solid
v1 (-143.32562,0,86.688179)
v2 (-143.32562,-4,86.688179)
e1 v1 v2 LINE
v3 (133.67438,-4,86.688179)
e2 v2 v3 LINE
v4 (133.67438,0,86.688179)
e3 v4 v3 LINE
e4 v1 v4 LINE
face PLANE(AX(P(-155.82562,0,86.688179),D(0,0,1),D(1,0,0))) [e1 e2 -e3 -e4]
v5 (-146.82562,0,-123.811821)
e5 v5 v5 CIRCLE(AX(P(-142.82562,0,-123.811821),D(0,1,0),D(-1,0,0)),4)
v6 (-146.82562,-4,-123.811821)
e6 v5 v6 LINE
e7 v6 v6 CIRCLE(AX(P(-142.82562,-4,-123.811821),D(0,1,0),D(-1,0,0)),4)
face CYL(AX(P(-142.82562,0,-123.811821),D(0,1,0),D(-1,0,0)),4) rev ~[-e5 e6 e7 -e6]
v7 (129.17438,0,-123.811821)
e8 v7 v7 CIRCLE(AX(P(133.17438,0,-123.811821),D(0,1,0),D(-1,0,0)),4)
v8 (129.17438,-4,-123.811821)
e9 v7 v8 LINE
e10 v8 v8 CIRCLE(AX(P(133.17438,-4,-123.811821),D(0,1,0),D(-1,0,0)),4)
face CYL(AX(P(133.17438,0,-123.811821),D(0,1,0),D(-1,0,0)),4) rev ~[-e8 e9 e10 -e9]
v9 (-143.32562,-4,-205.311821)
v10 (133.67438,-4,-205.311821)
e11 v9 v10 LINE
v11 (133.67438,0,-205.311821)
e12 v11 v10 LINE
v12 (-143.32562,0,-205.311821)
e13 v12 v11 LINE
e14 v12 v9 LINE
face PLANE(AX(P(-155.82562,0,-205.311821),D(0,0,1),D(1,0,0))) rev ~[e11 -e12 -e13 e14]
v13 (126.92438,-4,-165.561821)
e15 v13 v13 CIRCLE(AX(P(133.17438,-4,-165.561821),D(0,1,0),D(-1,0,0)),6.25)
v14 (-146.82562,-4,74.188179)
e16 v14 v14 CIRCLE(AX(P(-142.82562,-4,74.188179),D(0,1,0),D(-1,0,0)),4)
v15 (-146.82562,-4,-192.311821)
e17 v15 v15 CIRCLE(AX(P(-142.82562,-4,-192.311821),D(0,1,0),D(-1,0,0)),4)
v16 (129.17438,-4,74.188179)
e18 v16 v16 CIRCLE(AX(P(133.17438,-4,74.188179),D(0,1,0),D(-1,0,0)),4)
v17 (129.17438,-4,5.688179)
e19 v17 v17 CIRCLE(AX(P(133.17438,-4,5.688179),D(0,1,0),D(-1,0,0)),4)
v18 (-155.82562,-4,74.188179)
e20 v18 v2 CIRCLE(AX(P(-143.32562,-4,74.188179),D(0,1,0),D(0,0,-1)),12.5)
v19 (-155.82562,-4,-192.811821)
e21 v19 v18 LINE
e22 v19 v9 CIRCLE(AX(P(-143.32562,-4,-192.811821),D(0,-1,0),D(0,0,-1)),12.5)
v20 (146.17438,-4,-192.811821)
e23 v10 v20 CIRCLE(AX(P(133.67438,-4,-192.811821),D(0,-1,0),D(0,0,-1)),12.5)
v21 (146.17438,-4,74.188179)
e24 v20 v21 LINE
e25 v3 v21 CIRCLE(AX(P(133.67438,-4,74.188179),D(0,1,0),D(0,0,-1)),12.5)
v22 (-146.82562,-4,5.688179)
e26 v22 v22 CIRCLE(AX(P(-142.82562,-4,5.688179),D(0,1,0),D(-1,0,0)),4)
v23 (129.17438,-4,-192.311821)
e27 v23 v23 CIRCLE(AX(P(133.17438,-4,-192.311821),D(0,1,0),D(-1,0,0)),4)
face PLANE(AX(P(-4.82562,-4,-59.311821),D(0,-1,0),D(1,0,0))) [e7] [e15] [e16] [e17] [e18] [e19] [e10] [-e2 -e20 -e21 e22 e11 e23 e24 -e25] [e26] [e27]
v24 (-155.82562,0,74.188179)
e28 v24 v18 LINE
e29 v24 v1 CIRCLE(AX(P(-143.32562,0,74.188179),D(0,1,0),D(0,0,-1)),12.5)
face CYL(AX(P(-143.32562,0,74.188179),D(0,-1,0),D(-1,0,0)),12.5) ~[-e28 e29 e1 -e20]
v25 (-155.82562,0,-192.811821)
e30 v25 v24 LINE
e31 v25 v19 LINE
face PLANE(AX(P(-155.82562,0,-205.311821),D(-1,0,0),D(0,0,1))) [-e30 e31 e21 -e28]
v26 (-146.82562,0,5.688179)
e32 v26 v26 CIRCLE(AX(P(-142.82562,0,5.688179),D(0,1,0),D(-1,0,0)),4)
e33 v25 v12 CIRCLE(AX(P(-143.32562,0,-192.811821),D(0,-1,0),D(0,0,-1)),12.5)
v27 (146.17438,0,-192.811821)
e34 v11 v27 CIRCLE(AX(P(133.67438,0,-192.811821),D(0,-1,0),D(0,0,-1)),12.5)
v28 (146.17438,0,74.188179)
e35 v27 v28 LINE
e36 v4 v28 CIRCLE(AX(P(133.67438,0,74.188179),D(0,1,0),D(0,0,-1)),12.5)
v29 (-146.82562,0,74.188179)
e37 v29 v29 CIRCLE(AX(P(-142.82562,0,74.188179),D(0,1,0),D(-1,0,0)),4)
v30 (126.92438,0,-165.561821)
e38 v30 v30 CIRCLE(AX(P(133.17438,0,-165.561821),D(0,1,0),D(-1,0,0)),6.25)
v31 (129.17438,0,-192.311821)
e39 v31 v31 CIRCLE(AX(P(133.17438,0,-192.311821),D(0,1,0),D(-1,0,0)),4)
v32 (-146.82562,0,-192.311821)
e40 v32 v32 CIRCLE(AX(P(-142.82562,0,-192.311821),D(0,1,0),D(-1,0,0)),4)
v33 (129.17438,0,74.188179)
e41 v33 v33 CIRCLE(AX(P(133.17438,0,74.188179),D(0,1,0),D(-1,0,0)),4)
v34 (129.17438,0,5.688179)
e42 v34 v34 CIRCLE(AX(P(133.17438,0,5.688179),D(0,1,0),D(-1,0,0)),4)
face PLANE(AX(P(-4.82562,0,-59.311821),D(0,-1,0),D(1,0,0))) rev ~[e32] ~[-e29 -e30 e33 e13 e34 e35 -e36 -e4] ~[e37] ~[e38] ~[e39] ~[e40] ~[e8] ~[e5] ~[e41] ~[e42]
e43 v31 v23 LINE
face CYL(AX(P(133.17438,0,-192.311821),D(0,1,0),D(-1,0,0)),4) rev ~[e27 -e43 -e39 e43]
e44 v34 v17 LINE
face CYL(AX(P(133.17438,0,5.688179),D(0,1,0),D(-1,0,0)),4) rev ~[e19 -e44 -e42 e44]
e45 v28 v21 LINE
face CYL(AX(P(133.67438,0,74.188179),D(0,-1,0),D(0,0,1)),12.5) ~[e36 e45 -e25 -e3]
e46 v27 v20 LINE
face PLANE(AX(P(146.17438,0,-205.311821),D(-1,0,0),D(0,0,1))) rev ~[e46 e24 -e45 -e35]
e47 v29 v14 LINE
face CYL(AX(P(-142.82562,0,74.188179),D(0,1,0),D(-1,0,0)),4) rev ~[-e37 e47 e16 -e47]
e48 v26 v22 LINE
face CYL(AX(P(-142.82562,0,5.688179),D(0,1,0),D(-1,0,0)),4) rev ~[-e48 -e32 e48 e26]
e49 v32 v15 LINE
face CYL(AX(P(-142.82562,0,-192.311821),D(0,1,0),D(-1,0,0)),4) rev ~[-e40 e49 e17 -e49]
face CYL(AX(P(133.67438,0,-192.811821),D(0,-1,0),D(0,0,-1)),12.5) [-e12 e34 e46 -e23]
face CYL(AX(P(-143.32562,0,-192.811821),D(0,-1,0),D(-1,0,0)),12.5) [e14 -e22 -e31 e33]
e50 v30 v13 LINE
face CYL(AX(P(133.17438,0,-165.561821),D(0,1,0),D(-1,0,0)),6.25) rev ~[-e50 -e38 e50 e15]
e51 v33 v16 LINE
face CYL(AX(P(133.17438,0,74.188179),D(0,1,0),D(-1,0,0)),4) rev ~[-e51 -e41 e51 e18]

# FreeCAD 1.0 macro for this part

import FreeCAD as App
import Part
import Sketcher

V = App.Vector
Q = App.Units.Quantity


def edges_at(feature, points):
    """Names of the edges that pass closest to the given points."""
    edges = feature.Shape.Edges
    near = lambda p: min(range(len(edges)), key=lambda i: edges[i].distToShape(Part.Vertex(*p))[0])
    return sorted({f"Edge{near(p) + 1}" for p in points})


def add_polygon(sketch, points):
    """Adds a closed chain of lines whose ends are joined by coincident constraints."""
    first, n = sketch.GeometryCount, len(points)
    for a, b in zip(points, points[1:] + points[:1]):
        sketch.addGeometry(Part.LineSegment(App.Vector(*a, 0), App.Vector(*b, 0)), False)
    for i in range(n):
        sketch.addConstraint(Sketcher.Constraint("Coincident", first + i, 2, first + (i + 1) % n, 1))

doc = App.newDocument("Part")
body = doc.addObject("PartDesign::Body", "Body")

# Sketch on XZ plane
sketch1 = body.newObject("Sketcher::SketchObject", "Sketch")
sketch1.AttachmentSupport = (doc.getObject("XZ_Plane"), [""])
sketch1.MapMode = "FlatFace"
add_polygon(sketch1, [(-155.82562, 86.688179), (-155.82562, -205.311821), (146.17438, -205.311821), (146.17438, 86.688179)])  # lines 0-3
sketch1.addConstraint(Sketcher.Constraint("Vertical", 0))
sketch1.addConstraint(Sketcher.Constraint("Horizontal", 1))
sketch1.addConstraint(Sketcher.Constraint("Vertical", 2))
sketch1.addConstraint(Sketcher.Constraint("Horizontal", 3))
sketch1.addConstraint(Sketcher.Constraint("DistanceX", 1, 1, 1, 2, Q("302 mm")))
sketch1.addConstraint(Sketcher.Constraint("DistanceY", 0, 2, 0, 1, Q("292 mm")))
sketch1.addConstraint(Sketcher.Constraint("DistanceX", 0, 2, -1, 1, Q("155.82562 mm")))
sketch1.addConstraint(Sketcher.Constraint("DistanceY", 0, 2, -1, 1, Q("205.311821 mm")))
pad1 = body.newObject("PartDesign::Pad", "Pad")
pad1.Profile = sketch1
pad1.Length = 4

# Sketch on XZ plane
sketch2 = body.newObject("Sketcher::SketchObject", "Sketch001")
sketch2.AttachmentSupport = (doc.getObject("XZ_Plane"), [""])
sketch2.MapMode = "FlatFace"
sketch2.addGeometry(Part.Circle(V(133.17438, -192.311821, 0), V(0, 0, 1), 4), False)
sketch2.addGeometry(Part.Circle(V(133.17438, -123.811821, 0), V(0, 0, 1), 4), False)
sketch2.addGeometry(Part.Circle(V(133.17438, 5.688179, 0), V(0, 0, 1), 4), False)
sketch2.addGeometry(Part.Circle(V(133.17438, 74.188179, 0), V(0, 0, 1), 4), False)
sketch2.addGeometry(Part.Circle(V(-142.82562, -192.311821, 0), V(0, 0, 1), 4), False)
sketch2.addGeometry(Part.Circle(V(-142.82562, -123.811821, 0), V(0, 0, 1), 4), False)
sketch2.addGeometry(Part.Circle(V(-142.82562, 5.688179, 0), V(0, 0, 1), 4), False)
sketch2.addGeometry(Part.Circle(V(-142.82562, 74.188179, 0), V(0, 0, 1), 4), False)
sketch2.addGeometry(Part.Circle(V(133.17438, -165.561821, 0), V(0, 0, 1), 6.25), False)
sketch2.addConstraint(Sketcher.Constraint("Equal", 0, 1))
sketch2.addConstraint(Sketcher.Constraint("Equal", 1, 2))
sketch2.addConstraint(Sketcher.Constraint("Equal", 2, 3))
sketch2.addConstraint(Sketcher.Constraint("Equal", 3, 4))
sketch2.addConstraint(Sketcher.Constraint("Equal", 4, 5))
sketch2.addConstraint(Sketcher.Constraint("Equal", 5, 6))
sketch2.addConstraint(Sketcher.Constraint("Equal", 6, 7))
sketch2.addConstraint(Sketcher.Constraint("Horizontal", 0, 3, 4, 3))
sketch2.addConstraint(Sketcher.Constraint("Horizontal", 1, 3, 5, 3))
sketch2.addConstraint(Sketcher.Constraint("Horizontal", 2, 3, 6, 3))
sketch2.addConstraint(Sketcher.Constraint("Horizontal", 3, 3, 7, 3))
sketch2.addConstraint(Sketcher.Constraint("Vertical", 0, 3, 1, 3))
sketch2.addConstraint(Sketcher.Constraint("Vertical", 1, 3, 2, 3))
sketch2.addConstraint(Sketcher.Constraint("Vertical", 2, 3, 3, 3))
sketch2.addConstraint(Sketcher.Constraint("Vertical", 4, 3, 5, 3))
sketch2.addConstraint(Sketcher.Constraint("Vertical", 5, 3, 6, 3))
sketch2.addConstraint(Sketcher.Constraint("Vertical", 6, 3, 7, 3))
sketch2.addConstraint(Sketcher.Constraint("Vertical", 3, 3, 8, 3))
sketch2.addConstraint(Sketcher.Constraint("Diameter", 0, Q("8 mm")))
sketch2.addConstraint(Sketcher.Constraint("Diameter", 8, Q("12.5 mm")))
sketch2.addConstraint(Sketcher.Constraint("DistanceY", 0, 3, 2, 3, Q("198 mm")))
sketch2.addConstraint(Sketcher.Constraint("DistanceY", 1, 3, 3, 3, Q("198 mm")))
sketch2.addConstraint(Sketcher.Constraint("DistanceX", 4, 3, 0, 3, Q("276 mm")))
sketch2.addConstraint(Sketcher.Constraint("DistanceY", 0, 3, 1, 3, Q("68.5 mm")))
sketch2.addConstraint(Sketcher.Constraint("DistanceY", 0, 3, 8, 3, Q("26.75 mm")))
sketch2.addConstraint(Sketcher.Constraint("DistanceX", -1, 1, 0, 3, Q("133.17438 mm")))
sketch2.addConstraint(Sketcher.Constraint("DistanceY", 0, 3, -1, 1, Q("192.311821 mm")))
pocket1 = body.newObject("PartDesign::Pocket", "Pocket")
pocket1.Profile = sketch2
pocket1.Length = 25
pocket1.Reversed = True
doc.recompute()

fillet = body.newObject("PartDesign::Fillet", "Fillet")
fillet.Base = (pocket1, edges_at(pocket1, [
    (146.174, -2, 86.688),
    (146.174, -2, -205.312),
    (-155.826, -2, -205.312),
    (-155.826, -2, 86.688),
]))
fillet.Radius = 12.5

doc.recompute()
